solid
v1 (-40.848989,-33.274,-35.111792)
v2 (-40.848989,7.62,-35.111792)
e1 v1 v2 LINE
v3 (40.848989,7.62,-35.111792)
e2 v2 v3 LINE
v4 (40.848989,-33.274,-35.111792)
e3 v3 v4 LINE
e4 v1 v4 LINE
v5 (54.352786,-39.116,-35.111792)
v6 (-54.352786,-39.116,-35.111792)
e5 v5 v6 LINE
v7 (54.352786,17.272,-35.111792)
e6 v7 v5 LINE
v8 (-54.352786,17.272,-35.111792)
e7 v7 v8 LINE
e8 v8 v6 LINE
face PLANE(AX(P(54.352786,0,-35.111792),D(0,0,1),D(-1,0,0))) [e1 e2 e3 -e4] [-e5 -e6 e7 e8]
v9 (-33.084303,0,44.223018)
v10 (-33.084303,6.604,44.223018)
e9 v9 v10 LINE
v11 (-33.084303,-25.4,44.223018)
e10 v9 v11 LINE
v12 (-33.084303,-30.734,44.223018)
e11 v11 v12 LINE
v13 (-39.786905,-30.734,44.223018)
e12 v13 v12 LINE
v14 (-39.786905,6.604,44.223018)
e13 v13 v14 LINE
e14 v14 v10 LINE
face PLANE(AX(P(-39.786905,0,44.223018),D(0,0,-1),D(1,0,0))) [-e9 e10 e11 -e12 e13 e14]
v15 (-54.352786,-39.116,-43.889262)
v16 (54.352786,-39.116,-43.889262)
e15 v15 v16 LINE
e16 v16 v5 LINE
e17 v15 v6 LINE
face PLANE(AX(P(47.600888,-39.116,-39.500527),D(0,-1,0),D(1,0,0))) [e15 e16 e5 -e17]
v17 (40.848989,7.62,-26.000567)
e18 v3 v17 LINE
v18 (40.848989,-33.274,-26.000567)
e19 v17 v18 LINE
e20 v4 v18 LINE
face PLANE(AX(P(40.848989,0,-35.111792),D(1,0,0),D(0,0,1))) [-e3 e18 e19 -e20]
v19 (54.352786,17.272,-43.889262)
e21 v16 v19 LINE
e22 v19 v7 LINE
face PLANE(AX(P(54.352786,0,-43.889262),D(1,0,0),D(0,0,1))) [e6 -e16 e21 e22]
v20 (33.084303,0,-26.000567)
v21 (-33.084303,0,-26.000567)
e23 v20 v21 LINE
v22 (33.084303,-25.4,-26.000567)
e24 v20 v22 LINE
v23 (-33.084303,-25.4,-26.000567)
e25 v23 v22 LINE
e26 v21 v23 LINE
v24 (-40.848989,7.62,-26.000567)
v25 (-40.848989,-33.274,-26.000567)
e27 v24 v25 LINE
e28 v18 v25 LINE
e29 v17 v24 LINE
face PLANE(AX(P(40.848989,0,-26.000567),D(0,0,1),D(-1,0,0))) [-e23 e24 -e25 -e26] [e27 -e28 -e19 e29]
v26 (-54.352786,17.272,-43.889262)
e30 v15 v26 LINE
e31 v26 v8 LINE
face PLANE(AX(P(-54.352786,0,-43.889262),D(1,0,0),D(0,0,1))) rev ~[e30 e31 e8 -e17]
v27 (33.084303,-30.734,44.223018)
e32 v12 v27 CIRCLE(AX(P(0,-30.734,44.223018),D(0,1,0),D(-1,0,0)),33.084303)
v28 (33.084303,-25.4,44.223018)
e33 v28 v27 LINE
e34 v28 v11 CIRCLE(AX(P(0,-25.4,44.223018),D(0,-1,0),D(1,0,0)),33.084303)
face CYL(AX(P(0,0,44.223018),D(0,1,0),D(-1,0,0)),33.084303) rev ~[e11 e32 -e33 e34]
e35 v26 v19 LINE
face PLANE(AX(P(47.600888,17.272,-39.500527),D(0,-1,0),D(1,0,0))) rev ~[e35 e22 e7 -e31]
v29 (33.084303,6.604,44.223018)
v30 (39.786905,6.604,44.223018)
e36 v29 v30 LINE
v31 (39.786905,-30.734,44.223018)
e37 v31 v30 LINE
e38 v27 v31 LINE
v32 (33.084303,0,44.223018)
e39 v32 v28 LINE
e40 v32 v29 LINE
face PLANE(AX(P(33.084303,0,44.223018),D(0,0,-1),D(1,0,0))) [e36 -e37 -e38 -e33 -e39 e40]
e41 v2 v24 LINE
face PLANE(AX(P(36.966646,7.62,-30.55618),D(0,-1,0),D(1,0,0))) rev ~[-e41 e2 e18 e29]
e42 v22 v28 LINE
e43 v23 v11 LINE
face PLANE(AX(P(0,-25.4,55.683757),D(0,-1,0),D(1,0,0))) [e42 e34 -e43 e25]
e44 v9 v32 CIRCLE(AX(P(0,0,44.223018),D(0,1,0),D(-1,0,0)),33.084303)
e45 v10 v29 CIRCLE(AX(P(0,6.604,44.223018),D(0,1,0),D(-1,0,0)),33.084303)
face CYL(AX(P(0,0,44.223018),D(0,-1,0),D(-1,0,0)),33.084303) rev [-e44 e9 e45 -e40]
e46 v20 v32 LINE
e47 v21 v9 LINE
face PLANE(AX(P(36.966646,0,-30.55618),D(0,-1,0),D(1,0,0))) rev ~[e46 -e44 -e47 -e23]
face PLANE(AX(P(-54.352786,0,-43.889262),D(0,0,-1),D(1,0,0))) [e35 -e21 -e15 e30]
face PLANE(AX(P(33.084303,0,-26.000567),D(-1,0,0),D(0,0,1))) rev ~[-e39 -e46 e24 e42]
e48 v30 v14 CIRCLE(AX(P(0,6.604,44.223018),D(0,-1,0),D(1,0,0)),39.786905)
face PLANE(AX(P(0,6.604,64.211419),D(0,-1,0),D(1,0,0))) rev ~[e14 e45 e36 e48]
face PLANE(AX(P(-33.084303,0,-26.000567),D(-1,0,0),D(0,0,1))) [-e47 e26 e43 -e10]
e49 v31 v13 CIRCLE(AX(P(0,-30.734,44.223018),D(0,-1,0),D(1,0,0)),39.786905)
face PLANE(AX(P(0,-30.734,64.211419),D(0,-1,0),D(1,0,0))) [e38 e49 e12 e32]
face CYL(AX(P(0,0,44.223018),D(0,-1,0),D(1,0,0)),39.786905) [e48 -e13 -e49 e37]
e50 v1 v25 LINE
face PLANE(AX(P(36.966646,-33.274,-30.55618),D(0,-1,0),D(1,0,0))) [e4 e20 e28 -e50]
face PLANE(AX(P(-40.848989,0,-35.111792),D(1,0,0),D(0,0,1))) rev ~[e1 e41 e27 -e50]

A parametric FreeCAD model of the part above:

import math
import FreeCAD as App
import Part
import Sketcher
from FreeCAD import Vector
Q = App.Units.Quantity


def add_polygon(sketch, points):
    """Adds a closed chain of lines whose ends are joined by coincident constraints."""
    first, n = sketch.GeometryCount, len(points)
    for a, b in zip(points, points[1:] + points[:1]):
        sketch.addGeometry(Part.LineSegment(App.Vector(*a, 0), App.Vector(*b, 0)), False)
    for i in range(n):
        sketch.addConstraint(Sketcher.Constraint("Coincident", first + i, 2, first + (i + 1) % n, 1))

doc = App.newDocument("Part")
params = doc.addObject("Spreadsheet::Sheet", "Params")
for row, (alias, value) in enumerate([
    ("pad1_length", "1 in"),
    ("pad2_length", "1.21 in"),
    ("pad2_length2", "0.26 in"),
    ("pad3_length", "1.31 in"),
    ("pad3_length2", "0.3 in"),
    ("pad4_length", "1.54 in"),
    ("pad4_length2", "0.68 in"),
], start=1):
    params.set(f"A{row}", alias)
    params.set(f"B{row}", "=" + value)
    params.setAlias(f"B{row}", alias)

body = doc.addObject("PartDesign::Body", "Body")

# Sketch on XZ plane
sketch1 = doc.addObject("Sketcher::SketchObject", "Sketch")
body.addObject(sketch1)
sketch1.AttachmentSupport = (doc.XZ_Plane, [""])
sketch1.MapMode = "FlatFace"
sketch1.addGeometry([
    Part.ArcOfCircle(Part.Circle(Vector(0, 44, 0), Vector(0, 0, 1), 33), math.radians(0), math.radians(180)),
    Part.LineSegment(Vector(-33, 44, 0), Vector(-33, -26, 0)),
    Part.LineSegment(Vector(-33, -26, 0), Vector(33, -26, 0)),
    Part.LineSegment(Vector(33, -26, 0), Vector(33, 44, 0)),
], False)
sketch1.addConstraint([
    Sketcher.Constraint("Tangent", 0, 2, 1, 1),
    Sketcher.Constraint("Coincident", 1, 2, 2, 1),
    Sketcher.Constraint("Coincident", 2, 2, 3, 1),
    Sketcher.Constraint("Tangent", 3, 2, 0, 1),
    Sketcher.Constraint("Vertical", 1),
    Sketcher.Constraint("Horizontal", 2),
    Sketcher.Constraint("Vertical", 3),
    Sketcher.Constraint("PointOnObject", 0, 3, -2),
    Sketcher.Constraint("Radius", 0, Q("33.084303 mm")),
    Sketcher.Constraint("DistanceY", 1, 2, 1, 1, Q("70.223585 mm")),
    Sketcher.Constraint("DistanceY", -1, 1, 0, 3, Q("44.223018 mm")),
])
pad1 = doc.addObject("PartDesign::Pad", "Pad")
body.addObject(pad1)
pad1.Profile = sketch1
pad1.setExpression("Length", "Params.pad1_length")

# Sketch on XZ plane
sketch2 = doc.addObject("Sketcher::SketchObject", "Sketch001")
body.addObject(sketch2)
sketch2.AttachmentSupport = (doc.XZ_Plane, [""])
sketch2.MapMode = "FlatFace"
sketch2.addGeometry([
    Part.LineSegment(Vector(-40, 44, 0), Vector(-33, 44, 0)),
    Part.ArcOfCircle(Part.Circle(Vector(0, 44, 0), Vector(0, 0, 1), 33), math.radians(0), math.radians(180)),
    Part.LineSegment(Vector(33, 44, 0), Vector(40, 44, 0)),
    Part.ArcOfCircle(Part.Circle(Vector(0, 44, 0), Vector(0, 0, 1), 40), math.radians(0), math.radians(180)),
], False)
sketch2.addConstraint([
    Sketcher.Constraint("Coincident", 0, 2, 1, 2),
    Sketcher.Constraint("Coincident", 1, 1, 2, 1),
    Sketcher.Constraint("Coincident", 2, 2, 3, 1),
    Sketcher.Constraint("Coincident", 3, 2, 0, 1),
    Sketcher.Constraint("Horizontal", 0),
    Sketcher.Constraint("Horizontal", 2),
    Sketcher.Constraint("Coincident", 3, 3, 1, 3),
    Sketcher.Constraint("Symmetric", 0, 2, 1, 1, -2),
    Sketcher.Constraint("Horizontal", 3, 3, 0, 2),
    Sketcher.Constraint("DistanceX", 0, 1, 0, 2, Q("6.702602 mm")),
    Sketcher.Constraint("Radius", 1, Q("33.084303 mm")),
    Sketcher.Constraint("DistanceY", -1, 1, 1, 3, Q("44.223018 mm")),
])
pad2 = doc.addObject("PartDesign::Pad", "Pad001")
body.addObject(pad2)
pad2.Profile = sketch2
pad2.Type = "TwoLengths"
pad2.setExpression("Length", "Params.pad2_length")
pad2.setExpression("Length2", "Params.pad2_length2")

# Sketch on XZ plane
sketch3 = doc.addObject("Sketcher::SketchObject", "Sketch002")
body.addObject(sketch3)
sketch3.AttachmentSupport = (doc.XZ_Plane, [""])
sketch3.MapMode = "FlatFace"
add_polygon(sketch3, [(41, -35), (41, -26), (-41, -26), (-41, -35)])  # lines 0-3
sketch3.addConstraint([
    Sketcher.Constraint("Vertical", 0),
    Sketcher.Constraint("Horizontal", 1),
    Sketcher.Constraint("Vertical", 2),
    Sketcher.Constraint("Horizontal", 3),
    Sketcher.Constraint("DistanceX", 1, 2, 1, 1, Q("81.697978 mm")),
    Sketcher.Constraint("DistanceY", 0, 1, 0, 2, Q("9.111226 mm")),
    Sketcher.Constraint("DistanceX", -1, 1, 0, 2, Q("40.848989 mm")),
    Sketcher.Constraint("DistanceY", 0, 2, -1, 1, Q("26.000567 mm")),
])
pad3 = doc.addObject("PartDesign::Pad", "Pad002")
body.addObject(pad3)
pad3.Profile = sketch3
pad3.Type = "TwoLengths"
pad3.setExpression("Length", "Params.pad3_length")
pad3.setExpression("Length2", "Params.pad3_length2")

# Sketch on XZ plane
sketch4 = doc.addObject("Sketcher::SketchObject", "Sketch003")
body.addObject(sketch4)
sketch4.AttachmentSupport = (doc.XZ_Plane, [""])
sketch4.MapMode = "FlatFace"
add_polygon(sketch4, [(54, -44), (54, -35), (-54, -35), (-54, -44)])  # lines 0-3
sketch4.addConstraint([
    Sketcher.Constraint("Vertical", 0),
    Sketcher.Constraint("Horizontal", 1),
    Sketcher.Constraint("Vertical", 2),
    Sketcher.Constraint("Horizontal", 3),
    Sketcher.Constraint("DistanceY", 0, 1, 0, 2, Q("8.777469 mm")),
    Sketcher.Constraint("DistanceX", 1, 2, 1, 1, Q("108.705573 mm")),
    Sketcher.Constraint("DistanceY", 2, 2, -1, 1, Q("43.889262 mm")),
    Sketcher.Constraint("DistanceX", -1, 1, 0, 2, Q("54.352786 mm")),
])
pad4 = doc.addObject("PartDesign::Pad", "Pad003")
body.addObject(pad4)
pad4.Profile = sketch4
pad4.Type = "TwoLengths"
pad4.setExpression("Length", "Params.pad4_length")
pad4.setExpression("Length2", "Params.pad4_length2")

doc.recompute()
